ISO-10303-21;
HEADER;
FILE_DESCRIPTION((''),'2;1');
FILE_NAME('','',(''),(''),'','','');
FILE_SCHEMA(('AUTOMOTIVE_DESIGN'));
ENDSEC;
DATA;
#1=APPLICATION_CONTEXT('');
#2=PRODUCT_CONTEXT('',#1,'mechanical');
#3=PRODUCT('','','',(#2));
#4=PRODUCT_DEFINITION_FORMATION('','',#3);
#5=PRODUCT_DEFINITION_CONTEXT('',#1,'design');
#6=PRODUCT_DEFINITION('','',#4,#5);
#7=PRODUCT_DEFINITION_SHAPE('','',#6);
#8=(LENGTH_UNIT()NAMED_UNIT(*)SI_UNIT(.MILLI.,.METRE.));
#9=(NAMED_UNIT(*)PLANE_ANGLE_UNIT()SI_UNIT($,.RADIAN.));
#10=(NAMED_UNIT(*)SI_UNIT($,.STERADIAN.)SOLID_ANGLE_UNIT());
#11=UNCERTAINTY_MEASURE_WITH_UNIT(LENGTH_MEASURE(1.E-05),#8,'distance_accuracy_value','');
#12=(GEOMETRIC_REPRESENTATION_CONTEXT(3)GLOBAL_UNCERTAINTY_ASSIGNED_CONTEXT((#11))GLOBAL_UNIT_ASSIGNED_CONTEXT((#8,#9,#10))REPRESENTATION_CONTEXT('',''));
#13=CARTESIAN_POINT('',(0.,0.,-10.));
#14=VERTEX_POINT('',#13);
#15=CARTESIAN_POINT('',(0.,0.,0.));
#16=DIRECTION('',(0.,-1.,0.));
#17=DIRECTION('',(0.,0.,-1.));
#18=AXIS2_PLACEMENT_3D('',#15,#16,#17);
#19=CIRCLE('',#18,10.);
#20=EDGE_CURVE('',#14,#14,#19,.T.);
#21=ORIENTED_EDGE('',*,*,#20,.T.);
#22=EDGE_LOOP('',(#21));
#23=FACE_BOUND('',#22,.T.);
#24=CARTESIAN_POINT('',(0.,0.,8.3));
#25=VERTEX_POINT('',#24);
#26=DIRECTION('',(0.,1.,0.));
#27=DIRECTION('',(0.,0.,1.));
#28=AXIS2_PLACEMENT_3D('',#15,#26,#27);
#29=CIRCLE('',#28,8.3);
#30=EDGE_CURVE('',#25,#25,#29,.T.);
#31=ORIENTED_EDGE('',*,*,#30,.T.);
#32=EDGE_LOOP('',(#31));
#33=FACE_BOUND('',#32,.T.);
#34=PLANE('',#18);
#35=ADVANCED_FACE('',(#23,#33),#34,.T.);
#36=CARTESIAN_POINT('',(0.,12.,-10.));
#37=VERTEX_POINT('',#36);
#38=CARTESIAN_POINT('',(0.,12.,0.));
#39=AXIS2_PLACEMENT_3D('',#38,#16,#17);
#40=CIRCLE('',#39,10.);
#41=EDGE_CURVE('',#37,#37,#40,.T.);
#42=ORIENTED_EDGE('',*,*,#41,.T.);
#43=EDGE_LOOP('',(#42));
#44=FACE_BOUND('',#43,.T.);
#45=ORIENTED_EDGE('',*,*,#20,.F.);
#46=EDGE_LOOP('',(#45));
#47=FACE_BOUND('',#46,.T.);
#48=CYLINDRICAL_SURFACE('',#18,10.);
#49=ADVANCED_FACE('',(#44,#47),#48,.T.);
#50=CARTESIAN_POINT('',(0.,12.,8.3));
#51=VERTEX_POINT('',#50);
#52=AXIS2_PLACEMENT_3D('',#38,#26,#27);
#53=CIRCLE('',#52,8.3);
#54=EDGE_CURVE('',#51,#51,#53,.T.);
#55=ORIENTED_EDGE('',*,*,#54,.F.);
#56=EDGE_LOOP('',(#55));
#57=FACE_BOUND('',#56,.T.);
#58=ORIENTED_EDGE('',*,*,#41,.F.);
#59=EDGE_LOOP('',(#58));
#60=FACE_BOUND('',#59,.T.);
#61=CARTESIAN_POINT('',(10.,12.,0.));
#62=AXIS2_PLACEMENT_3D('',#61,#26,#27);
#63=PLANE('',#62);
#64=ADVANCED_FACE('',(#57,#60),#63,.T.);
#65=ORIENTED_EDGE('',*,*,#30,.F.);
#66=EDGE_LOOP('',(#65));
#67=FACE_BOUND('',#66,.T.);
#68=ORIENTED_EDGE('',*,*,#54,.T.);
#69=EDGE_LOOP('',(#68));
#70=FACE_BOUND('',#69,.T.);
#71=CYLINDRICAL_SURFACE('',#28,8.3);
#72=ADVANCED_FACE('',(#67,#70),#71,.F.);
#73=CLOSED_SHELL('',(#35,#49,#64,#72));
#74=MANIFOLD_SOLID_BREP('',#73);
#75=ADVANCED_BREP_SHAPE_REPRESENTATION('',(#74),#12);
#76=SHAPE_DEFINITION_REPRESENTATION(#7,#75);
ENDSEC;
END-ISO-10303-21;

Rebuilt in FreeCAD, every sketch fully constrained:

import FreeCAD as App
import Part
import Sketcher

V = App.Vector


def add_polygon(sketch, points):
    """Adds a closed chain of lines whose ends are joined by coincident constraints."""
    first, n = sketch.GeometryCount, len(points)
    for a, b in zip(points, points[1:] + points[:1]):
        sketch.addGeometry(Part.LineSegment(App.Vector(*a, 0), App.Vector(*b, 0)), False)
    for i in range(n):
        sketch.addConstraint(Sketcher.Constraint("Coincident", first + i, 2, first + (i + 1) % n, 1))

doc = App.newDocument("Part")
body = doc.addObject("PartDesign::Body", "Body")

# Sketch on XY plane
sketch1 = body.newObject("Sketcher::SketchObject", "Sketch")
sketch1.AttachmentSupport = (doc.getObject("XY_Plane"), [""])
sketch1.MapMode = "FlatFace"
add_polygon(sketch1, [(0, 12), (0, 0), (10, 0), (10, 12)])  # lines 0-3
sketch1.addConstraint([
    Sketcher.Constraint("Vertical", 0),
    Sketcher.Constraint("Horizontal", 1),
    Sketcher.Constraint("Vertical", 2),
    Sketcher.Constraint("Horizontal", 3),
    Sketcher.Constraint("Coincident", 0, 2, -1, 1),
    Sketcher.Constraint("DistanceX", 1, 1, 1, 2, 10.0),
    Sketcher.Constraint("DistanceY", 0, 2, 0, 1, 12.0),
])
revolution = body.newObject("PartDesign::Revolution", "Revolution")
revolution.Profile = sketch1
revolution.ReferenceAxis = (sketch1, ["V_Axis"])
revolution.Angle = 360

# Sketch on XZ plane
sketch2 = body.newObject("Sketcher::SketchObject", "Sketch001")
sketch2.AttachmentSupport = (doc.getObject("XZ_Plane"), [""])
sketch2.MapMode = "FlatFace"
sketch2.AttachmentOffset = App.Placement(V(0, 0, -12), App.Rotation())
sketch2.addGeometry(Part.Circle(V(0, 0, 0), V(0, 0, 1), 4.3), False)
sketch2.addConstraint([
    Sketcher.Constraint("Coincident", 0, 3, -1, 1),
    Sketcher.Constraint("Diameter", 0, 8.6),
])
pocket1 = body.newObject("PartDesign::Pocket", "Pocket")
pocket1.Profile = sketch2
pocket1.Type = "ThroughAll"
pocket1.Reversed = True

# Sketch on XZ plane
sketch3 = body.newObject("Sketcher::SketchObject", "Sketch002")
sketch3.AttachmentSupport = (doc.getObject("XZ_Plane"), [""])
sketch3.MapMode = "FlatFace"
sketch3.AttachmentOffset = App.Placement(V(0, 0, -12), App.Rotation())
sketch3.addGeometry(Part.Circle(V(0, 0, 0), V(0, 0, 1), 8), False)
sketch3.addConstraint([
    Sketcher.Constraint("Coincident", 0, 3, -1, 1),
    Sketcher.Constraint("Diameter", 0, 16.6),
])
pocket2 = body.newObject("PartDesign::Pocket", "Pocket001")
pocket2.Profile = sketch3
pocket2.Type = "ThroughAll"
pocket2.Reversed = True

doc.recompute()
